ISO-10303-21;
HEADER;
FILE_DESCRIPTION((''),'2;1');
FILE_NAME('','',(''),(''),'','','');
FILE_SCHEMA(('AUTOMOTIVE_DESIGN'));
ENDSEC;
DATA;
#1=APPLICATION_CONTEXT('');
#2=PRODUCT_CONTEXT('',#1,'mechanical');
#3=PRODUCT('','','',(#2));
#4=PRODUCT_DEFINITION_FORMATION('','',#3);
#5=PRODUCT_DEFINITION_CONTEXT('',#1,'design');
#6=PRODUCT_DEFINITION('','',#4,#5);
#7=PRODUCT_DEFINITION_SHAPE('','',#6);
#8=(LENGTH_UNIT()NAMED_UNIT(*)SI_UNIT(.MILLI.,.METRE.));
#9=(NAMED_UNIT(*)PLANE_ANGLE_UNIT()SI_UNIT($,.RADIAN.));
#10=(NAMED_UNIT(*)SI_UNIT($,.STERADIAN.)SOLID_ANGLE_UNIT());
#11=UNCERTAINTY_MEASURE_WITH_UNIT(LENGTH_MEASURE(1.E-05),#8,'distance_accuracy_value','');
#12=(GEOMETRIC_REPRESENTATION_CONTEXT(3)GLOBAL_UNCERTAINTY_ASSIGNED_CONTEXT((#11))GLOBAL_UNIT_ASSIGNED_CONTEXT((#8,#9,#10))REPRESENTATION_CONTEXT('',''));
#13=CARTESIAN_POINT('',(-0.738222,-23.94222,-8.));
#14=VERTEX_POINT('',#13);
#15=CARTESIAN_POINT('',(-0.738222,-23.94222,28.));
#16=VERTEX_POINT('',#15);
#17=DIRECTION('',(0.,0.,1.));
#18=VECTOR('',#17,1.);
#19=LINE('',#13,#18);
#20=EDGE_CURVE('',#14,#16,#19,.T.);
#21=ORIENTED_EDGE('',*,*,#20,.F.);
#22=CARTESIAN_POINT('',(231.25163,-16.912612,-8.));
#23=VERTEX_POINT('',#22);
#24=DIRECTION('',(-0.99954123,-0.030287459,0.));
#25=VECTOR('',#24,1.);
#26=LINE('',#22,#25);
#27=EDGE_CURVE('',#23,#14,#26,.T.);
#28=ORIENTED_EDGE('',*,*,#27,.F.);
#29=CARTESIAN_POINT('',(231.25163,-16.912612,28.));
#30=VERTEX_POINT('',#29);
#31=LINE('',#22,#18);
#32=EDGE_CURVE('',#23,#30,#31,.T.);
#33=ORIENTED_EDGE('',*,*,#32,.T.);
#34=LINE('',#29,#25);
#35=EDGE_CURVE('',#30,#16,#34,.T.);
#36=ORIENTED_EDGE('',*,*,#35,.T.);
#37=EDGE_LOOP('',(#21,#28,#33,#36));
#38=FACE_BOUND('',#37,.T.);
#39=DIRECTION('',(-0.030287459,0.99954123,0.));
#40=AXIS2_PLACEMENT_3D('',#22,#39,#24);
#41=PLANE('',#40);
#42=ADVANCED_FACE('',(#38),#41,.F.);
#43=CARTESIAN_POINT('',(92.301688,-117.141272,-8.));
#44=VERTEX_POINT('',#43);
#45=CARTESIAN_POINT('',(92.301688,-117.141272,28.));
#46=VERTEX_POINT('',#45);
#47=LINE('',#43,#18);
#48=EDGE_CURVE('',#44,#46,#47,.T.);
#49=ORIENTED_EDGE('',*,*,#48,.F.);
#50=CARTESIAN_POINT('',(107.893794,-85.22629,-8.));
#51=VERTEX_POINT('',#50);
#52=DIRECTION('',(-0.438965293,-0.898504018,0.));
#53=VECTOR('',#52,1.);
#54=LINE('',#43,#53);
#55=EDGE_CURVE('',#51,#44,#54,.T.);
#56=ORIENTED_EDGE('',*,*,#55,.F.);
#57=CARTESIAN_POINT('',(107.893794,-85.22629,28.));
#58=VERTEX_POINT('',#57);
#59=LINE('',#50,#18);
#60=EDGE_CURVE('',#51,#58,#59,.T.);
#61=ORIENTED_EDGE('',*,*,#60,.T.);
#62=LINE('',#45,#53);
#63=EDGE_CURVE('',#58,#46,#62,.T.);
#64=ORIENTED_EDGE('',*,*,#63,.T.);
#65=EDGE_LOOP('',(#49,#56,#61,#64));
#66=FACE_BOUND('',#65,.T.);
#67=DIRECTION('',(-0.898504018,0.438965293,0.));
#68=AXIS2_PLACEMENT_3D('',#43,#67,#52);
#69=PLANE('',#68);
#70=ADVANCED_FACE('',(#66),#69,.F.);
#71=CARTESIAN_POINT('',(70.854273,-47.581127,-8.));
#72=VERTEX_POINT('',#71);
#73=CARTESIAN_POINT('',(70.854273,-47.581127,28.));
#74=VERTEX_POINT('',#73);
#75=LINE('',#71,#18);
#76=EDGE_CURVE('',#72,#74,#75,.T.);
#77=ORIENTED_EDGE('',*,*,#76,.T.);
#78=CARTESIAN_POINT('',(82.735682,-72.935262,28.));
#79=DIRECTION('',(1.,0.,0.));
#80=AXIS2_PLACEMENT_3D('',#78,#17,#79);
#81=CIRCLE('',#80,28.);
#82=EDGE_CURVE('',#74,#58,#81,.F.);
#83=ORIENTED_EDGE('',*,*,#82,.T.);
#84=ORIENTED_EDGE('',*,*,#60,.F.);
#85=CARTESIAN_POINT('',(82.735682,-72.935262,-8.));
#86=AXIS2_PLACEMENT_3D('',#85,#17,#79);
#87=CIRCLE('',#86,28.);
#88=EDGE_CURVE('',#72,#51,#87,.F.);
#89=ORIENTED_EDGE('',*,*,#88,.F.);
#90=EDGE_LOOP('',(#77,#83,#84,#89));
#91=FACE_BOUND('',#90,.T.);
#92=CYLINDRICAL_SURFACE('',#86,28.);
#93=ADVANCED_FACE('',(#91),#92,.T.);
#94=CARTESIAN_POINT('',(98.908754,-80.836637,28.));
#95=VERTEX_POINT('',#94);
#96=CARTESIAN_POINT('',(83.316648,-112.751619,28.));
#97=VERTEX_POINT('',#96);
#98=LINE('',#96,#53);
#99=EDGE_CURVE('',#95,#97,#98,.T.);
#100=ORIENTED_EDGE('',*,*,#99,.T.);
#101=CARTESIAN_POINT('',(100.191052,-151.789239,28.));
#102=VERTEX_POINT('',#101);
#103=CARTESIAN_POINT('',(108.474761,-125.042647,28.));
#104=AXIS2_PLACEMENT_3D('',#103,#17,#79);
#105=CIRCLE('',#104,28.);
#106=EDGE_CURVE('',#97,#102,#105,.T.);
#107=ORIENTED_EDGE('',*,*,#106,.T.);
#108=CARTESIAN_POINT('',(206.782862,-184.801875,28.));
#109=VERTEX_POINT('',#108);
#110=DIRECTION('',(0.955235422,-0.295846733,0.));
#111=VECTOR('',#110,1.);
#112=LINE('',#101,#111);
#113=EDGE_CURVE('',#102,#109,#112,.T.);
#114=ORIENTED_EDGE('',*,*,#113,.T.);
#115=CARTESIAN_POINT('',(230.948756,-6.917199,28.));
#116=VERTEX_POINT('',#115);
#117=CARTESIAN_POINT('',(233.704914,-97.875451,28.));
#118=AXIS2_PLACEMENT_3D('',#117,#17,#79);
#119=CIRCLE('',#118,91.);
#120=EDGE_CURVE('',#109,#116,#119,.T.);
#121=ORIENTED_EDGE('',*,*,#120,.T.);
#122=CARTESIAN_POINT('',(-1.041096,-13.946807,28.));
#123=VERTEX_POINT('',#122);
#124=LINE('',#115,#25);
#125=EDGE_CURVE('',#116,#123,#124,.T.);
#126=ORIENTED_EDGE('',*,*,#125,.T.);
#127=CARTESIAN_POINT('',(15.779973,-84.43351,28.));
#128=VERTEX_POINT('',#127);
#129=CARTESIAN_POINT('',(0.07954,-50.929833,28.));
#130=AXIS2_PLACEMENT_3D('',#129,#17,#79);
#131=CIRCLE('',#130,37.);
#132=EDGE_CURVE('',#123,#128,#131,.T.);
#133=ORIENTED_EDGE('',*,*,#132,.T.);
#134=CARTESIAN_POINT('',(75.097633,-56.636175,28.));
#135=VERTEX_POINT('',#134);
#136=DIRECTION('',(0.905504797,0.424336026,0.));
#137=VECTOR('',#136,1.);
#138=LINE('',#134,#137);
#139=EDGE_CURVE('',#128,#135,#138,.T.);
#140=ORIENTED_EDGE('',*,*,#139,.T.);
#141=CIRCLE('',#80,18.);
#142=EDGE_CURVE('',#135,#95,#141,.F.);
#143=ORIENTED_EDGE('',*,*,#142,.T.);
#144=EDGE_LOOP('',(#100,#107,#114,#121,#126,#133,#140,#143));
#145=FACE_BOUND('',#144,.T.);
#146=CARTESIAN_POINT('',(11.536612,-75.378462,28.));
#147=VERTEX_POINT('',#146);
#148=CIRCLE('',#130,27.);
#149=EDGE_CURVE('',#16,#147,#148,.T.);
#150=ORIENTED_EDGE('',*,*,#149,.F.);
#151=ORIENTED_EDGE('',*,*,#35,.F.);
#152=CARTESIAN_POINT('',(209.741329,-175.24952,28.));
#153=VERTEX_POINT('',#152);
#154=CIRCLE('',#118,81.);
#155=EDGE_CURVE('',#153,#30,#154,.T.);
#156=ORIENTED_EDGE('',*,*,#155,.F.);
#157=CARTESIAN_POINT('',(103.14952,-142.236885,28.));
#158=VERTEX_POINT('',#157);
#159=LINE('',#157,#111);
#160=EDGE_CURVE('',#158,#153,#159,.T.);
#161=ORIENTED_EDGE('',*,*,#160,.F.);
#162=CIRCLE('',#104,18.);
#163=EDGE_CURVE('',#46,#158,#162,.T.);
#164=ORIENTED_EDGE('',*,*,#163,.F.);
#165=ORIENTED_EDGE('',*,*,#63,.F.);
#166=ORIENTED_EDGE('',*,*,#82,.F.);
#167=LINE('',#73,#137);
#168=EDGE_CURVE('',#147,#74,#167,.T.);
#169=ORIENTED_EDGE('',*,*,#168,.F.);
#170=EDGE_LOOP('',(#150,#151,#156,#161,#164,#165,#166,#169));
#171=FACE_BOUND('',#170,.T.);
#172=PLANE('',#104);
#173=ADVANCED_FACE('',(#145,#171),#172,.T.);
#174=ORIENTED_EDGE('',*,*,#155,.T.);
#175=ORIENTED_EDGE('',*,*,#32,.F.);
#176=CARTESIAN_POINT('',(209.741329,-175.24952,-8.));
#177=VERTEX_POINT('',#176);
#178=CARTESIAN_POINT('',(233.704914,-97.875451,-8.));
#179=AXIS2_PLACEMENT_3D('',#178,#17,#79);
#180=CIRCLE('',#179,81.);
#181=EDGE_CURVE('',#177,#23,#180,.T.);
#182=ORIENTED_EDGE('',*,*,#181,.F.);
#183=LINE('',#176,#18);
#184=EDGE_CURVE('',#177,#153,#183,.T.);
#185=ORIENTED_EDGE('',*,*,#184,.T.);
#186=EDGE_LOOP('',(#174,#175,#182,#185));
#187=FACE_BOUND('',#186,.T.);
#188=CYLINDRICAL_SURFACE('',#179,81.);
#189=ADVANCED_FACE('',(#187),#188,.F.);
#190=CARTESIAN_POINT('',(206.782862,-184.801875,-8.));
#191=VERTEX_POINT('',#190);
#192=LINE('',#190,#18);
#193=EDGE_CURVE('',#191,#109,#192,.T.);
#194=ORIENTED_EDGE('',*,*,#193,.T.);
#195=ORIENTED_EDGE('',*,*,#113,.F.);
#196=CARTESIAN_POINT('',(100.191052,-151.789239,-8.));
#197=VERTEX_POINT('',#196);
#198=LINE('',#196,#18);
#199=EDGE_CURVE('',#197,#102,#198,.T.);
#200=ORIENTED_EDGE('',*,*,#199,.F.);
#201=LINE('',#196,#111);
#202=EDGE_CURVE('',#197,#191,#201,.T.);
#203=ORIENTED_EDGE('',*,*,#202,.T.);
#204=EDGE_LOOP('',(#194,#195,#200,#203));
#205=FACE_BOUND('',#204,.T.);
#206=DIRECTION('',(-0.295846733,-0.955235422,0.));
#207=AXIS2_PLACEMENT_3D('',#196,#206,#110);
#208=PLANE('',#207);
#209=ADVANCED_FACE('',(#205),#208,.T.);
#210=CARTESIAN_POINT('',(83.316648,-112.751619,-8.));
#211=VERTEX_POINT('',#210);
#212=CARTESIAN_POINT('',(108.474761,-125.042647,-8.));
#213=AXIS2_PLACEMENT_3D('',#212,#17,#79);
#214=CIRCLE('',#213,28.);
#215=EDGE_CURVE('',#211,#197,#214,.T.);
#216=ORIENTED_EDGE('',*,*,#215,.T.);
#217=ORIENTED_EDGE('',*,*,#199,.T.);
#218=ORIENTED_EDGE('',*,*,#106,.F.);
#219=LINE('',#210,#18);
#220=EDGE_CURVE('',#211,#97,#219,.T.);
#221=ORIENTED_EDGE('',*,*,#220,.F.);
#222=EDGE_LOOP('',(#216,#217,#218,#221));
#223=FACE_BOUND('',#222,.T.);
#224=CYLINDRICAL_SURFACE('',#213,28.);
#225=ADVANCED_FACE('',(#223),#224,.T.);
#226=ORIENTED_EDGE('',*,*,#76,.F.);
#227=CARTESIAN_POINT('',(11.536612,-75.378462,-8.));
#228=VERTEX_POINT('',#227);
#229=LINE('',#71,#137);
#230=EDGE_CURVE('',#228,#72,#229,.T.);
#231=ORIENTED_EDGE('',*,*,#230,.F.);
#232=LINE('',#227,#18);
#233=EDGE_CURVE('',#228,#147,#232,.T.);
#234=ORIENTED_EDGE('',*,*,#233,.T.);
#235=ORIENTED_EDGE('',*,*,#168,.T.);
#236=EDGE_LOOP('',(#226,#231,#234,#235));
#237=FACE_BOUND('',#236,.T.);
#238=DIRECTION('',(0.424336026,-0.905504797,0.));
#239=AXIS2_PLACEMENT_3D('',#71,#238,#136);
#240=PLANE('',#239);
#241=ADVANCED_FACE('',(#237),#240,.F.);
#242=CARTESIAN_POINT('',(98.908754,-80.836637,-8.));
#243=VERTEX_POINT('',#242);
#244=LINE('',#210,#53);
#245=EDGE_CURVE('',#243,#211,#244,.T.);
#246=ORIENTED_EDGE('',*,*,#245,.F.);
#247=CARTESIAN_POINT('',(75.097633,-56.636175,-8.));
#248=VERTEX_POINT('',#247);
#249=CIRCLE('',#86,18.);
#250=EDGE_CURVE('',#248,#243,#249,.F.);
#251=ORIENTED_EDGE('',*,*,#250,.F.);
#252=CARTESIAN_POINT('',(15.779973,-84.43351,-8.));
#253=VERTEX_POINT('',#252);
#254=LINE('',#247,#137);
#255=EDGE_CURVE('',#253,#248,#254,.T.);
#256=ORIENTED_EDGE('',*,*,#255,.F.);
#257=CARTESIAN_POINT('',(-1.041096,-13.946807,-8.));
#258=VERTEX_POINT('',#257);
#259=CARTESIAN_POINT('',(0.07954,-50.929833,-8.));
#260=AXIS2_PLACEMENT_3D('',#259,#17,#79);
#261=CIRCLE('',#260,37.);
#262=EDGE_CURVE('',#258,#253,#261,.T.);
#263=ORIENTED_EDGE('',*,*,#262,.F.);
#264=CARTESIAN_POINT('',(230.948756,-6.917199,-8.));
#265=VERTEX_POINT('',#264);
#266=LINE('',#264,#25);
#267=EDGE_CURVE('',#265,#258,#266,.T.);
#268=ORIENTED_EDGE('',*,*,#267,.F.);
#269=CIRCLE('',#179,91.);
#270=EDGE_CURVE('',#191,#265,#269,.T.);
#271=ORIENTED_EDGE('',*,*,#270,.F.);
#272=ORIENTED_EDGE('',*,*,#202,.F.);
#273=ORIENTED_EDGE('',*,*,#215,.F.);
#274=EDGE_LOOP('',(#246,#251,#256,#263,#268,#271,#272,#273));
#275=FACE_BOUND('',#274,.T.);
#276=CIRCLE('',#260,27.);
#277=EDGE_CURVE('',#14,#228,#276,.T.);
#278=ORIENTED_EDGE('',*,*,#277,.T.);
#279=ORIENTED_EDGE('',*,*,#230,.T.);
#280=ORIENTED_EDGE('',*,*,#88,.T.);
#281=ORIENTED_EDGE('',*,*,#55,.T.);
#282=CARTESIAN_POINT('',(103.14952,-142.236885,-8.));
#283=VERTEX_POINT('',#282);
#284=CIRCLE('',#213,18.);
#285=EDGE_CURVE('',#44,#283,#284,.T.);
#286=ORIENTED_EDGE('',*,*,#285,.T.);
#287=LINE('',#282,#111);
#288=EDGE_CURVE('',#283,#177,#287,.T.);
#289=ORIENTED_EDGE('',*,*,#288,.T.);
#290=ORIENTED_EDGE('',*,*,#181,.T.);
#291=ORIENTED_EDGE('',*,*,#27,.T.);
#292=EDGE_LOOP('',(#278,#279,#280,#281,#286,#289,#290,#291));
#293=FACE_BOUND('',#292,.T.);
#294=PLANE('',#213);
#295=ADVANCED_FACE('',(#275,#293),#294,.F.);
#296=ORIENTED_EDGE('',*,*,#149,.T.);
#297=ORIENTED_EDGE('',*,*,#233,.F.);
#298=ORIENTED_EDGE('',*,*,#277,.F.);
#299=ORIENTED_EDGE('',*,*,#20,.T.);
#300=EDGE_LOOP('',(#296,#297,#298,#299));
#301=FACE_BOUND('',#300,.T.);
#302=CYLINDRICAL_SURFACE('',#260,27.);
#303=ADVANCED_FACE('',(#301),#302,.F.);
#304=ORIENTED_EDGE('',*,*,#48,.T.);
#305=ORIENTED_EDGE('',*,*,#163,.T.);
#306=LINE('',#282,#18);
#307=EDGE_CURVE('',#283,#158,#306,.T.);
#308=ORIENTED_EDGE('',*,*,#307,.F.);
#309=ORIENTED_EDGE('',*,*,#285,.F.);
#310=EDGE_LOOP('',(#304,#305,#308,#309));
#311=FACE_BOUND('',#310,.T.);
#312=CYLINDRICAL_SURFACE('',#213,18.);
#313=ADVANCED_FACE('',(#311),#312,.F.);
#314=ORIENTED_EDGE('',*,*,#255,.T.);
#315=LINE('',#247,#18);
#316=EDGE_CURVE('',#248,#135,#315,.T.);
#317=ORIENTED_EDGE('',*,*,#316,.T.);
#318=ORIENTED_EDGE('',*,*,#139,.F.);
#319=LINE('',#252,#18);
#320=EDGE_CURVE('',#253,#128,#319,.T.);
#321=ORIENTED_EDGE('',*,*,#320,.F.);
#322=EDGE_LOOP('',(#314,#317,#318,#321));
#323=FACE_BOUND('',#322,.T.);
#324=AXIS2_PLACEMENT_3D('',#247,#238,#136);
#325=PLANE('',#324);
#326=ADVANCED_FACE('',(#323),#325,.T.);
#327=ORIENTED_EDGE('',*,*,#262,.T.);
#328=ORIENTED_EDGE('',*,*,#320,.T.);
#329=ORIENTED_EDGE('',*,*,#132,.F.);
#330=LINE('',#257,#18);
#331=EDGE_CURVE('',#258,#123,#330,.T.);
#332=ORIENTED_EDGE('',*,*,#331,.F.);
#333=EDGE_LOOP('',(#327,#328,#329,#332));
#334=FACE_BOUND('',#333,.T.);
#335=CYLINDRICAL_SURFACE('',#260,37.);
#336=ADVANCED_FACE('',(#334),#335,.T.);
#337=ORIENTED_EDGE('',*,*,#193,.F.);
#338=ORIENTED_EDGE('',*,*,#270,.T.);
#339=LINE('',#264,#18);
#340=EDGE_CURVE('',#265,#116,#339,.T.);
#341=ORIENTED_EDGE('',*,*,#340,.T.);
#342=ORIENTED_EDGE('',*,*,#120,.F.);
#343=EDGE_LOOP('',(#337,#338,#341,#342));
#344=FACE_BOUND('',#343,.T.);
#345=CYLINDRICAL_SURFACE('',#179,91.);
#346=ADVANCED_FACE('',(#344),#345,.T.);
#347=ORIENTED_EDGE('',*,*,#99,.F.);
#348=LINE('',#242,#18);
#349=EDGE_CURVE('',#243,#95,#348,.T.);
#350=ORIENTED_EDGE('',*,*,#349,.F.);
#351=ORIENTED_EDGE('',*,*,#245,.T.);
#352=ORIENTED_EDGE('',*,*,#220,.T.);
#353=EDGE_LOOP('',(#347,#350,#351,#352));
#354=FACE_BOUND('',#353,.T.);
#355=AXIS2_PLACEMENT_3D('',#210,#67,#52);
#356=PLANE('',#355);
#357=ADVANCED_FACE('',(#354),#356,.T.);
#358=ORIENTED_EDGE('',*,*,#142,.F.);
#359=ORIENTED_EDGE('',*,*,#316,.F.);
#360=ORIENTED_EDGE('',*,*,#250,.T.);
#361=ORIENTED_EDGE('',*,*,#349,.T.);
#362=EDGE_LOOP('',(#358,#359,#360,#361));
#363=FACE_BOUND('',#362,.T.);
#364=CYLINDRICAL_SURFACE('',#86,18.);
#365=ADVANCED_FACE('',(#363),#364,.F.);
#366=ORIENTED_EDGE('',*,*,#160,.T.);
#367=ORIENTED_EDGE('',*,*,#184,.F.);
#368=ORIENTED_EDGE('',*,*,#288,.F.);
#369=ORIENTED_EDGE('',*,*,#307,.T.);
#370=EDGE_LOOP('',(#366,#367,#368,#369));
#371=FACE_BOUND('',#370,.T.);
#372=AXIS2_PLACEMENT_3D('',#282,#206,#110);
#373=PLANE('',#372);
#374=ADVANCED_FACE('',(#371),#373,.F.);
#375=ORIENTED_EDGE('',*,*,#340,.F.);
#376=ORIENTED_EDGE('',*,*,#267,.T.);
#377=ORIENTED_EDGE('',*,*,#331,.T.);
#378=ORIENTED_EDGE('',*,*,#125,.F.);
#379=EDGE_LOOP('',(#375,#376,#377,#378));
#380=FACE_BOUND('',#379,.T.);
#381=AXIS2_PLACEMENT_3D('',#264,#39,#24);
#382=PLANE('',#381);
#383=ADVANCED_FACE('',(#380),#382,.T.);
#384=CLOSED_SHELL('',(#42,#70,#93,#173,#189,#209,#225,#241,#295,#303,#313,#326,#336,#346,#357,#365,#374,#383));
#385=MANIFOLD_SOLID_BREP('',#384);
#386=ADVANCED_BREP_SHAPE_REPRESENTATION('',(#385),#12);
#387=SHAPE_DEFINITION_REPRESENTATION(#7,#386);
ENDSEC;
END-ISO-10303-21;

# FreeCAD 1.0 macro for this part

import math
import FreeCAD as App
import Part
import Sketcher

V = App.Vector
Q = App.Units.Quantity

doc = App.newDocument("Part")
body = doc.addObject("PartDesign::Body", "Body")

# Sketch on XY plane
sketch1 = body.newObject("Sketcher::SketchObject", "Sketch")
sketch1.AttachmentSupport = (doc.getObject("XY_Plane"), [""])
sketch1.MapMode = "FlatFace"
sketch1.addGeometry(Part.LineSegment(V(15.779973, -84.43351, 0), V(75.097633, -56.636175, 0)), False)
sketch1.addGeometry(Part.ArcOfCircle(Part.Circle(V(82.735682, -72.935262, 0), V(0, 0, 1), 18), math.radians(-26.037881), math.radians(115.108643)), False)
sketch1.addGeometry(Part.LineSegment(V(98.908754, -80.836637, 0), V(83.316648, -112.751619, 0)), False)
sketch1.addGeometry(Part.ArcOfCircle(Part.Circle(V(108.474761, -125.042647, 0), V(0, 0, 1), 28), math.radians(153.962119), math.radians(252.791682)), False)
sketch1.addGeometry(Part.LineSegment(V(100.191052, -151.789239, 0), V(206.782862, -184.801875, 0)), False)
sketch1.addGeometry(Part.ArcOfCircle(Part.Circle(V(233.704914, -97.875451, 0), V(0, 0, 1), 91), math.radians(-107.208318), math.radians(91.735609)), False)
sketch1.addGeometry(Part.LineSegment(V(230.948756, -6.917199, 0), V(-1.041096, -13.946807, 0)), False)
sketch1.addGeometry(Part.ArcOfCircle(Part.Circle(V(0.07954, -50.929833, 0), V(0, 0, 1), 37), math.radians(91.735609), math.radians(295.108643)), False)
sketch1.addGeometry(Part.LineSegment(V(70.854273, -47.581127, 0), V(11.536612, -75.378462, 0)), False)
sketch1.addGeometry(Part.ArcOfCircle(Part.Circle(V(0.07954, -50.929833, 0), V(0, 0, 1), 27), math.radians(91.735609), math.radians(295.108643)), False)
sketch1.addGeometry(Part.LineSegment(V(-0.738222, -23.94222, 0), V(231.25163, -16.912612, 0)), False)
sketch1.addGeometry(Part.ArcOfCircle(Part.Circle(V(233.704914, -97.875451, 0), V(0, 0, 1), 81), math.radians(-107.208318), math.radians(91.735609)), False)
sketch1.addGeometry(Part.LineSegment(V(209.741329, -175.24952, 0), V(103.14952, -142.236885, 0)), False)
sketch1.addGeometry(Part.ArcOfCircle(Part.Circle(V(108.474761, -125.042647, 0), V(0, 0, 1), 18), math.radians(153.962119), math.radians(252.791682)), False)
sketch1.addGeometry(Part.LineSegment(V(92.301688, -117.141272, 0), V(107.893794, -85.22629, 0)), False)
sketch1.addGeometry(Part.ArcOfCircle(Part.Circle(V(82.735682, -72.935262, 0), V(0, 0, 1), 28), math.radians(-26.037881), math.radians(115.108643)), False)
sketch1.addConstraint(Sketcher.Constraint("Tangent", 0, 2, 1, 2))
sketch1.addConstraint(Sketcher.Constraint("Tangent", 1, 1, 2, 1))
sketch1.addConstraint(Sketcher.Constraint("Tangent", 2, 2, 3, 1))
sketch1.addConstraint(Sketcher.Constraint("Tangent", 3, 2, 4, 1))
sketch1.addConstraint(Sketcher.Constraint("Tangent", 4, 2, 5, 1))
sketch1.addConstraint(Sketcher.Constraint("Tangent", 5, 2, 6, 1))
sketch1.addConstraint(Sketcher.Constraint("Tangent", 6, 2, 7, 1))
sketch1.addConstraint(Sketcher.Constraint("Tangent", 7, 2, 0, 1))
sketch1.addConstraint(Sketcher.Constraint("Tangent", 8, 2, 9, 2))
sketch1.addConstraint(Sketcher.Constraint("Tangent", 9, 1, 10, 1))
sketch1.addConstraint(Sketcher.Constraint("Tangent", 10, 2, 11, 2))
sketch1.addConstraint(Sketcher.Constraint("Tangent", 11, 1, 12, 1))
sketch1.addConstraint(Sketcher.Constraint("Tangent", 12, 2, 13, 2))
sketch1.addConstraint(Sketcher.Constraint("Tangent", 13, 1, 14, 1))
sketch1.addConstraint(Sketcher.Constraint("Tangent", 14, 2, 15, 1))
sketch1.addConstraint(Sketcher.Constraint("Tangent", 15, 2, 8, 1))
sketch1.addConstraint(Sketcher.Constraint("Coincident", 9, 3, 7, 3))
sketch1.addConstraint(Sketcher.Constraint("Coincident", 11, 3, 5, 3))
sketch1.addConstraint(Sketcher.Constraint("Coincident", 13, 3, 3, 3))
sketch1.addConstraint(Sketcher.Constraint("Coincident", 15, 3, 1, 3))
sketch1.addConstraint(Sketcher.Constraint("Equal", 1, 13))
sketch1.addConstraint(Sketcher.Constraint("Equal", 3, 15))
sketch1.addConstraint(Sketcher.Constraint("Parallel", 0, 8))
sketch1.addConstraint(Sketcher.Constraint("Parallel", 6, 10))
sketch1.addConstraint(Sketcher.Constraint("Radius", 1, Q("18 mm")))
sketch1.addConstraint(Sketcher.Constraint("Radius", 3, Q("28 mm")))
sketch1.addConstraint(Sketcher.Constraint("Radius", 5, Q("91 mm")))
sketch1.addConstraint(Sketcher.Constraint("Radius", 7, Q("37 mm")))
sketch1.addConstraint(Sketcher.Constraint("DistanceX", 1, 1, 5, 2, Q("132.040002 mm")))
sketch1.addConstraint(Sketcher.Constraint("DistanceY", 5, 2, -1, 1, Q("6.917199 mm")))
sketch1.addConstraint(Sketcher.Constraint("DistanceX", 1, 1, 3, 2, Q("1.282298 mm")))
sketch1.addConstraint(Sketcher.Constraint("DistanceX", 3, 3, 4, 2, Q("98.308101 mm")))
sketch1.addConstraint(Sketcher.Constraint("Distance", 6, Q("232.096331 mm")))
sketch1.addConstraint(Sketcher.Constraint("DistanceX", -1, 1, 1, 3, Q("82.735682 mm")))
sketch1.addConstraint(Sketcher.Constraint("DistanceY", 1, 3, -1, 1, Q("72.935262 mm")))
sketch1.addConstraint(Sketcher.Constraint("DistanceX", -1, 1, 3, 3, Q("108.474761 mm")))
pad1 = body.newObject("PartDesign::Pad", "Pad")
pad1.Profile = sketch1
pad1.Type = "TwoLengths"
pad1.Length = 28
pad1.Length2 = 8

doc.recompute()
